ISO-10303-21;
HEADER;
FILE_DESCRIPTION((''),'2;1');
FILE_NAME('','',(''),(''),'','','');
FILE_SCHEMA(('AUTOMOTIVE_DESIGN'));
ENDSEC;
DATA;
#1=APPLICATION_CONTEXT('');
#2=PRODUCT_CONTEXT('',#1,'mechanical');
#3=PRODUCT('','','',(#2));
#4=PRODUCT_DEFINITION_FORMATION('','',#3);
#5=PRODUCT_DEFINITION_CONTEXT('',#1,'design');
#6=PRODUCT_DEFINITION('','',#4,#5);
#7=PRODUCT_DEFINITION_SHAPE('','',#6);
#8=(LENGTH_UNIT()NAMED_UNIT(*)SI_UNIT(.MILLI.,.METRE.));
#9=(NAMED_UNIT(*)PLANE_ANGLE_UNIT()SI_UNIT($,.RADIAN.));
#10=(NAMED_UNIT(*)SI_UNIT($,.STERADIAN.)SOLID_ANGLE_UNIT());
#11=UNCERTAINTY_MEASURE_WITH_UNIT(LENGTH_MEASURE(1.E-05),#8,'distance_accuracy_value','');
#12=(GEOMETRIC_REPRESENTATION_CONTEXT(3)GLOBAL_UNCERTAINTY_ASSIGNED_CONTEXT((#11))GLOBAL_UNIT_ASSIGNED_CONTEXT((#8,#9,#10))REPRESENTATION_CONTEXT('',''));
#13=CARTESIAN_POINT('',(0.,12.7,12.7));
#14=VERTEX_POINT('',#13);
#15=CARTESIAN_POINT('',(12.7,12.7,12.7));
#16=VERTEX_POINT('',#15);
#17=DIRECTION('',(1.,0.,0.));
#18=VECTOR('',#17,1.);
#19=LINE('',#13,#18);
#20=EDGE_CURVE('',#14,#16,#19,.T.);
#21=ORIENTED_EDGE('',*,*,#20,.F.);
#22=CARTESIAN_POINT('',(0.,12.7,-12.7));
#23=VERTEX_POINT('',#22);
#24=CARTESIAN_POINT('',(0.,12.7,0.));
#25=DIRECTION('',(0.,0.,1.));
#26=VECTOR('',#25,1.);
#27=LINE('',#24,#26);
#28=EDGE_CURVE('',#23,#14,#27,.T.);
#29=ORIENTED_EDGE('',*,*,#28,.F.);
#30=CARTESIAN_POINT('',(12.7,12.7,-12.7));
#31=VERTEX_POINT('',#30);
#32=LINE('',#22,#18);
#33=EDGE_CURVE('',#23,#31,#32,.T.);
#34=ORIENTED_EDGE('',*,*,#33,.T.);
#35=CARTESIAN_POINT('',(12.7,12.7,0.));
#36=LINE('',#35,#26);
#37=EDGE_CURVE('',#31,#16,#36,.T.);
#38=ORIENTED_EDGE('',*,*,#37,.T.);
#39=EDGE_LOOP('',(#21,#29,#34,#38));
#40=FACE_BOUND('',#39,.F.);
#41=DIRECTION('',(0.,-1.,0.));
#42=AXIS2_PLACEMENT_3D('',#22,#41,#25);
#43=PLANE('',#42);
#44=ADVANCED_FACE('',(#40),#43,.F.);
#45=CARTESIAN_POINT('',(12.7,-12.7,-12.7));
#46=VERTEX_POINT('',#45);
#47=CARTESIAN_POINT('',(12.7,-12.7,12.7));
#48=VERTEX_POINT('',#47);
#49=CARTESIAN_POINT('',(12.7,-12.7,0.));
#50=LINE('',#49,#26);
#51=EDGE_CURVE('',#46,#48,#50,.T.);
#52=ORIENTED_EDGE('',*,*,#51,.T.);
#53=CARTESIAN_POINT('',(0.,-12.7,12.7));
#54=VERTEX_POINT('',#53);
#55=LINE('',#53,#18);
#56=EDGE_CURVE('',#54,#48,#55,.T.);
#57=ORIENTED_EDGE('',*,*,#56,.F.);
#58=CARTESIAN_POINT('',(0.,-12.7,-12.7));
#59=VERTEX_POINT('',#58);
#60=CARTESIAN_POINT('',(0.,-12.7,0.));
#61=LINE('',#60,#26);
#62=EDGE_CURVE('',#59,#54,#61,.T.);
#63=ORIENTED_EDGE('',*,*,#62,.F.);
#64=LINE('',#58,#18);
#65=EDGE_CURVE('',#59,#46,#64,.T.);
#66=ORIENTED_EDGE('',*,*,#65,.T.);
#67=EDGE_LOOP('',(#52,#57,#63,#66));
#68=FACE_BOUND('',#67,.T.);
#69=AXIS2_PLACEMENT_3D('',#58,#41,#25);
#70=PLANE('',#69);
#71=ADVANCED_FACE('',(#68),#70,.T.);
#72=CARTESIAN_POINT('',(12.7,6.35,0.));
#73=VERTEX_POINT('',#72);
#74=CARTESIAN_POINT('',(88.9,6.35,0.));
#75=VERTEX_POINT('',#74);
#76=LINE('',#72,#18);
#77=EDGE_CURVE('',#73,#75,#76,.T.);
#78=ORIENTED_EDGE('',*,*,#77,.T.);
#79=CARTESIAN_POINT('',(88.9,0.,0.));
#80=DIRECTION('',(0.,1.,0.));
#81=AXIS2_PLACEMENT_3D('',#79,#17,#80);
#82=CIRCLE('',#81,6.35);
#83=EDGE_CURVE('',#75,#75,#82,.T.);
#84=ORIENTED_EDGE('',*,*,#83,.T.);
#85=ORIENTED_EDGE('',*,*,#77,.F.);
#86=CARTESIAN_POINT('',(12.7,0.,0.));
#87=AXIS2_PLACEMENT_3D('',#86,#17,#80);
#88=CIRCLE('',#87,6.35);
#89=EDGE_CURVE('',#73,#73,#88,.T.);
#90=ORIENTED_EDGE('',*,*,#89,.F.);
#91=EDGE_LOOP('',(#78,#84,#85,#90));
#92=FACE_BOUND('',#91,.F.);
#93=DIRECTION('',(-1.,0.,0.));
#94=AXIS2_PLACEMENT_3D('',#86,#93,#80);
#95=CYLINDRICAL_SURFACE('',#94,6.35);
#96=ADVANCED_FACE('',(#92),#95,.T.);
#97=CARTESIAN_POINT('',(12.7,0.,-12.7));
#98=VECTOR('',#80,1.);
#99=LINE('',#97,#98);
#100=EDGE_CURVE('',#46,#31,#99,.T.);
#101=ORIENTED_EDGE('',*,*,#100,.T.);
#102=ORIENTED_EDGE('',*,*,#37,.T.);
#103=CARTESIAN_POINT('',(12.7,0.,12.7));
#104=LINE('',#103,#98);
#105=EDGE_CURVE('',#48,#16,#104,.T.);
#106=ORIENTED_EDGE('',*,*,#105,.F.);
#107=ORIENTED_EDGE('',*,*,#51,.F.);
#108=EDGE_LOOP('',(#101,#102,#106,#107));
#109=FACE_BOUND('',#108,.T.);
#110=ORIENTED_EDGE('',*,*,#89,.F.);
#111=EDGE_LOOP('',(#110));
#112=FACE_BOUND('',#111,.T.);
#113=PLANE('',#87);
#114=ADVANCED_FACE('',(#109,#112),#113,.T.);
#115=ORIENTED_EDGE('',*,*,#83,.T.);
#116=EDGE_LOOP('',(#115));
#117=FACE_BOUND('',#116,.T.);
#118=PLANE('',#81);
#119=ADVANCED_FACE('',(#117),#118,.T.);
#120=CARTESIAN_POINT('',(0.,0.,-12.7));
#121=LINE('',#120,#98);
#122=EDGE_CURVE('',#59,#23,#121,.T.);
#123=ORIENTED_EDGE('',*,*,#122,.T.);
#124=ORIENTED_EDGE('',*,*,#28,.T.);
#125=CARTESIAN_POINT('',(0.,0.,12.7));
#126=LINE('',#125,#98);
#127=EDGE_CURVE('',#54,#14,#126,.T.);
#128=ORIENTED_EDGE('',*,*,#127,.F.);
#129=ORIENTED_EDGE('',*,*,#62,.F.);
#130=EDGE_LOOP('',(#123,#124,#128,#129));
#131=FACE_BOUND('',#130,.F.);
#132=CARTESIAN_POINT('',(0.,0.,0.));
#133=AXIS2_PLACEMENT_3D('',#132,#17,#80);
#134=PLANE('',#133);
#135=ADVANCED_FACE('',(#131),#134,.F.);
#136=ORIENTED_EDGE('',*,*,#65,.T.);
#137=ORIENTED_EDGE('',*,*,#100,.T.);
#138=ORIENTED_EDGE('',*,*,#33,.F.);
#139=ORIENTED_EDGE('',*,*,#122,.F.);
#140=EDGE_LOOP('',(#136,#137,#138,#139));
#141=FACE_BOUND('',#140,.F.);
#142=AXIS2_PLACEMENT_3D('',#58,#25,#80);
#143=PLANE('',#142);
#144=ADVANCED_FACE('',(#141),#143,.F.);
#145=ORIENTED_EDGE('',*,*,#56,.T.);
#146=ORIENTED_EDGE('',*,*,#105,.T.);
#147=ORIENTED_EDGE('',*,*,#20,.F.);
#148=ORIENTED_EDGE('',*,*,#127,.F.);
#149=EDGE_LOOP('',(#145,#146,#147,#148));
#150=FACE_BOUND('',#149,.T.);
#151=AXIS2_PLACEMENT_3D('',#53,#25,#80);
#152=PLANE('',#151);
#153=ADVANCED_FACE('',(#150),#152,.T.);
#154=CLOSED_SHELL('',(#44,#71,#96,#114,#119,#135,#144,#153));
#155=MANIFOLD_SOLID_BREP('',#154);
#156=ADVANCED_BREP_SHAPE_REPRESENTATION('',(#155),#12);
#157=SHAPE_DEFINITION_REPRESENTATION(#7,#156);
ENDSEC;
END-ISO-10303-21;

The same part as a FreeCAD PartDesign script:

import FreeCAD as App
import Part
import Sketcher
Q = App.Units.Quantity


def add_polygon(sketch, points):
    """Adds a closed chain of lines whose ends are joined by coincident constraints."""
    first, n = sketch.GeometryCount, len(points)
    for a, b in zip(points, points[1:] + points[:1]):
        sketch.addGeometry(Part.LineSegment(App.Vector(*a, 0), App.Vector(*b, 0)), False)
    for i in range(n):
        sketch.addConstraint(Sketcher.Constraint("Coincident", first + i, 2, first + (i + 1) % n, 1))

doc = App.newDocument("Part")
params = doc.addObject("Spreadsheet::Sheet", "Params")
for row, (alias, value) in enumerate([
    ("sketch1_width", "1 in"),
    ("pad1_length", "0.5 in"),
    ("sketch2_diameter", "0.5 in"),
    ("pad2_length", "3 in"),
], start=1):
    params.set(f"A{row}", alias)
    params.set(f"B{row}", "=" + value)
    params.setAlias(f"B{row}", alias)

body = doc.addObject("PartDesign::Body", "Body")

# Sketch on YZ plane
sketch1 = body.newObject("Sketcher::SketchObject", "Sketch")
sketch1.AttachmentSupport = (doc.getObject("YZ_Plane"), [""])
sketch1.MapMode = "FlatFace"
add_polygon(sketch1, [(-13, 13), (-13, -13), (13, -13), (13, 13)])  # lines 0-3
sketch1.addConstraint([
    Sketcher.Constraint("Vertical", 0),
    Sketcher.Constraint("Horizontal", 1),
    Sketcher.Constraint("Vertical", 2),
    Sketcher.Constraint("Horizontal", 3),
    Sketcher.Constraint("Symmetric", 0, 2, 2, 2, -1, 1),
    Sketcher.Constraint("Equal", 3, 0),
    Sketcher.Constraint("DistanceX", 1, 1, 1, 2, Q("1 in")),
])
sketch1.setExpression("Constraints[10]", "Params.sketch1_width")
pad1 = body.newObject("PartDesign::Pad", "Pad")
pad1.Profile = sketch1
pad1.setExpression("Length", "Params.pad1_length")

# Sketch on YZ plane
sketch2 = body.newObject("Sketcher::SketchObject", "Sketch001")
sketch2.AttachmentSupport = (doc.getObject("YZ_Plane"), [""])
sketch2.MapMode = "FlatFace"
sketch2.AttachmentOffset = App.Placement(App.Vector(0, 0, 0.5 * 25.4), App.Rotation())
sketch2.addGeometry(Part.Circle(App.Vector(0, 0, 0), App.Vector(0, 0, 1), 6), False)
sketch2.addConstraint([
    Sketcher.Constraint("Coincident", 0, 3, -1, 1),
    Sketcher.Constraint("Diameter", 0, Q("0.5 in")),
])
sketch2.setExpression("Constraints[1]", "Params.sketch2_diameter")
pad2 = body.newObject("PartDesign::Pad", "Pad001")
pad2.Profile = sketch2
pad2.setExpression("Length", "Params.pad2_length")

doc.recompute()
